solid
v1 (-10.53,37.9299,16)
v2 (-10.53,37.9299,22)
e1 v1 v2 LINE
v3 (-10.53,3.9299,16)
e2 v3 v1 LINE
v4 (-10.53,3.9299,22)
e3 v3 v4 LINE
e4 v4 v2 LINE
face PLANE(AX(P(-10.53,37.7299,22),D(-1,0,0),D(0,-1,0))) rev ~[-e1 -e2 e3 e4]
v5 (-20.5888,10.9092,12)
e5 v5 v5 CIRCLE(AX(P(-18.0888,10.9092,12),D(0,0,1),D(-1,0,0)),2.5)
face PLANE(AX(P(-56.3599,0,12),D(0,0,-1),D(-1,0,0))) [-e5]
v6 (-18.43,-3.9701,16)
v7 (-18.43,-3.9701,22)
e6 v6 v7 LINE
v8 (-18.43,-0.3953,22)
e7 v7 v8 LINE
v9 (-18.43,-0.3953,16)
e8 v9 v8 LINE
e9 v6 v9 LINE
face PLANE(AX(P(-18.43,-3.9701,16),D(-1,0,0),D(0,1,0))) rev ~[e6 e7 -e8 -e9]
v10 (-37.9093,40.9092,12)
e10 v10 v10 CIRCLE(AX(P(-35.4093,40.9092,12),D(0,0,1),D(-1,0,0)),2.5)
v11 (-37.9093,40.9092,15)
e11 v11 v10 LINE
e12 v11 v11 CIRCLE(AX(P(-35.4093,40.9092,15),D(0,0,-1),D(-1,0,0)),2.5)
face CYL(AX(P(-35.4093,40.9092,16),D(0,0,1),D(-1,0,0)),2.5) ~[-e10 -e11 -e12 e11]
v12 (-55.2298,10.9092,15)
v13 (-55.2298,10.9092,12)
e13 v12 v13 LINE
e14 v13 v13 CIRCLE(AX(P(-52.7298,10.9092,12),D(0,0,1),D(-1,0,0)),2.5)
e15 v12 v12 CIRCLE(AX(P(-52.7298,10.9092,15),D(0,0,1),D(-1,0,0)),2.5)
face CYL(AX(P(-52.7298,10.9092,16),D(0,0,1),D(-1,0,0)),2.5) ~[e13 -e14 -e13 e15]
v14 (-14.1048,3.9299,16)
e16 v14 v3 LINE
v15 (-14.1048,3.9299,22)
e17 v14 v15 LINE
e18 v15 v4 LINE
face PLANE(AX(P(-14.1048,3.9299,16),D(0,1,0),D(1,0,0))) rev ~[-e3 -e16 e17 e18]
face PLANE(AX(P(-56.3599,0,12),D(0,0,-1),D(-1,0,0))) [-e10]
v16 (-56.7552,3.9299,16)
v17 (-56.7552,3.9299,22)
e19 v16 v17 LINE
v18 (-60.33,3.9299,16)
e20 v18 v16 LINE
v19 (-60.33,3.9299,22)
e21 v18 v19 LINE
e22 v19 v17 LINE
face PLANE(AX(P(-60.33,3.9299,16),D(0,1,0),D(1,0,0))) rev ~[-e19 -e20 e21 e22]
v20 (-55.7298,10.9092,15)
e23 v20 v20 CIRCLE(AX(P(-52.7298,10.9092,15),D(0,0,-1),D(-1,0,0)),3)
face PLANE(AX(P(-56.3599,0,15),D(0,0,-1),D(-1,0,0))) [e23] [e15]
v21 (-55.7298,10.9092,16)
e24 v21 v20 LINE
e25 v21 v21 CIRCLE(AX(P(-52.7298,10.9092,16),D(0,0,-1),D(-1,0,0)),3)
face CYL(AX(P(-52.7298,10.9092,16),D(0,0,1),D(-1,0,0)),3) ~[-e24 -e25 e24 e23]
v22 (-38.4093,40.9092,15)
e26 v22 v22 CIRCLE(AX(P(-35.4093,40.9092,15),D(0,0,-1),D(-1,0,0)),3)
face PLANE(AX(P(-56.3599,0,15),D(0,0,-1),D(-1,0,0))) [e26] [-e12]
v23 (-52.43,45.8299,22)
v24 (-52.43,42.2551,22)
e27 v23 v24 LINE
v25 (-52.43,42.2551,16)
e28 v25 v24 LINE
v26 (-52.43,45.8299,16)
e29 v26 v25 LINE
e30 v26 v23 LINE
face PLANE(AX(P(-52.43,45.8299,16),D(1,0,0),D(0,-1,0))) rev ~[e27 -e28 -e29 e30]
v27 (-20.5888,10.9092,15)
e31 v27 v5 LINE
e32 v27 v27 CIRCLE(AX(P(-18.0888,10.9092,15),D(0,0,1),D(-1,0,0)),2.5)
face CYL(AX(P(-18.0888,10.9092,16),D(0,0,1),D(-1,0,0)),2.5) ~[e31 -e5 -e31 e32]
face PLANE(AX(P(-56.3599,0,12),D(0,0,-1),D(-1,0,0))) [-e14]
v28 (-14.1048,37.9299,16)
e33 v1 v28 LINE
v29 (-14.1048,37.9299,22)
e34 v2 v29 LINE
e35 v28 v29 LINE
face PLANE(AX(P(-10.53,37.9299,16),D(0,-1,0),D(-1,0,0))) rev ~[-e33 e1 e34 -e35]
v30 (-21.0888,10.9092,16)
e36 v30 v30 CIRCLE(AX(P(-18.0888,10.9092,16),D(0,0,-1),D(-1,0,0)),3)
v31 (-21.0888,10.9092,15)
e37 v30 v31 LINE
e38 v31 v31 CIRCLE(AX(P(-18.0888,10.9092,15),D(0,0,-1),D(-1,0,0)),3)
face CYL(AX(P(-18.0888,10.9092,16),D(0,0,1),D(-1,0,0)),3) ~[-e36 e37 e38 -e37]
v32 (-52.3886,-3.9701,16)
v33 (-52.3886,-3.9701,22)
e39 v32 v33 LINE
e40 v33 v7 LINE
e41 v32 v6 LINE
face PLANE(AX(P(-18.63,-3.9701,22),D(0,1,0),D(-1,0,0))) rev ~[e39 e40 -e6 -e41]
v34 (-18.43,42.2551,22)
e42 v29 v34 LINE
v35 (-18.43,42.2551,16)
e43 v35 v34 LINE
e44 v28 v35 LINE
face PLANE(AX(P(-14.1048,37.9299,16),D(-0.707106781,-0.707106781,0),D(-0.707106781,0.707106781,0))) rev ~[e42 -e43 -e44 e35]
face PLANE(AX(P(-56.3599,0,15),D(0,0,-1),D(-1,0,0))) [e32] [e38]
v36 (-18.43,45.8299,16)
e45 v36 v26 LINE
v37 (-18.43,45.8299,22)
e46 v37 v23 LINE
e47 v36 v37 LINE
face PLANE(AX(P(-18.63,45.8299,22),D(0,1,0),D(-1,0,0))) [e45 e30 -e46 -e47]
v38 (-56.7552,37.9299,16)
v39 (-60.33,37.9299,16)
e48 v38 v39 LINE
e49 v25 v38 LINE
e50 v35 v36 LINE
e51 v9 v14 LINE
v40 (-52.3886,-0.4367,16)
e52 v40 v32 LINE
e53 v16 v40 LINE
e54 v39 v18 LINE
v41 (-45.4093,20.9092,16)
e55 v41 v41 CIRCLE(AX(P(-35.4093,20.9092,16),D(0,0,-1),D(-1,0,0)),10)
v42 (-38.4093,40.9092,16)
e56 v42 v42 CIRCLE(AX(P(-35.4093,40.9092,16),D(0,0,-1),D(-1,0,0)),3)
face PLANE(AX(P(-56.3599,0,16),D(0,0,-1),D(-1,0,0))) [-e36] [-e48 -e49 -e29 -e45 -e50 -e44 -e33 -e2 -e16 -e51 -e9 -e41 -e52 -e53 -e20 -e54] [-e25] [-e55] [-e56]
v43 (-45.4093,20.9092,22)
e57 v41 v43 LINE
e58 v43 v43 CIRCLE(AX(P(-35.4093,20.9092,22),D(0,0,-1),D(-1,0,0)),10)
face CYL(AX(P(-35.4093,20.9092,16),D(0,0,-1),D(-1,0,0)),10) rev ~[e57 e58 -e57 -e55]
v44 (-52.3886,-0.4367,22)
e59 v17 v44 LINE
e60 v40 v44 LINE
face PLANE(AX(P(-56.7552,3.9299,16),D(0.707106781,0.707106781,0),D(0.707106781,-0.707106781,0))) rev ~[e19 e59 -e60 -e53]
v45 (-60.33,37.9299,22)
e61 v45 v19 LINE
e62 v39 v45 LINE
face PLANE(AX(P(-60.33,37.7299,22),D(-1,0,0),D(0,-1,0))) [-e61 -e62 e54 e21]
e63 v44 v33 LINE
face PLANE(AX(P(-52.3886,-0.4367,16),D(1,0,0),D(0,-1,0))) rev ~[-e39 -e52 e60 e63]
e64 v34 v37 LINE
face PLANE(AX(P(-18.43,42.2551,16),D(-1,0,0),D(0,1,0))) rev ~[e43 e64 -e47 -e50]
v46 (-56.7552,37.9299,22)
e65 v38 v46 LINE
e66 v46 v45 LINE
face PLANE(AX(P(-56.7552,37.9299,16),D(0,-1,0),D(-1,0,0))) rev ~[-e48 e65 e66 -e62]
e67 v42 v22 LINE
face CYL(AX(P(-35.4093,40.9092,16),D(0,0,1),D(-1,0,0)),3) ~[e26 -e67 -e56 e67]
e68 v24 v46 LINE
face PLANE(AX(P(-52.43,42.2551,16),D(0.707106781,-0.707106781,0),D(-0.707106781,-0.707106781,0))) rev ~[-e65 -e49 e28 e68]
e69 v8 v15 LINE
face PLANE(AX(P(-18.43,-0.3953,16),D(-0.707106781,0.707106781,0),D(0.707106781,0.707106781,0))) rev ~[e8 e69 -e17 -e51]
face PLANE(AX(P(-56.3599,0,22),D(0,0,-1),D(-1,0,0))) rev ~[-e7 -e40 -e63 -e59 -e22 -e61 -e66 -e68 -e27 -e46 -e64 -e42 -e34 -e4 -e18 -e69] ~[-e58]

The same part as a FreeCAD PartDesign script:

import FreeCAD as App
import Part
import Sketcher

V = App.Vector
Q = App.Units.Quantity

doc = App.newDocument("Part")
body = doc.addObject("PartDesign::Body", "Body")

# Sketch on XY plane
sketch1 = doc.addObject("Sketcher::SketchObject", "Sketch")
body.addObject(sketch1)
sketch1.AttachmentSupport = (doc.XY_Plane, [""])
sketch1.MapMode = "FlatFace"
sketch1.AttachmentOffset = App.Placement(V(0, 0, 22), App.Rotation())
sketch1.addGeometry([
    Part.LineSegment(V(-52.189, -0.354, 0), V(-56.672, 4.13, 0)),  # 0
    Part.LineSegment(V(-56.672, 4.13, 0), V(-60.33, 4.13, 0)),  # 1
    Part.LineSegment(V(-60.33, 4.13, 0), V(-60.33, 37.73, 0)),  # 2
    Part.LineSegment(V(-60.33, 37.73, 0), V(-56.672, 37.73, 0)),  # 3
    Part.LineSegment(V(-56.672, 37.73, 0), V(-52.23, 42.172, 0)),  # 4
    Part.LineSegment(V(-52.23, 42.172, 0), V(-52.23, 45.83, 0)),  # 5
    Part.LineSegment(V(-52.23, 45.83, 0), V(-18.63, 45.83, 0)),  # 6
    Part.LineSegment(V(-18.63, 45.83, 0), V(-18.63, 42.172, 0)),  # 7
    Part.LineSegment(V(-18.63, 42.172, 0), V(-14.188, 37.73, 0)),  # 8
    Part.LineSegment(V(-14.188, 37.73, 0), V(-10.53, 37.73, 0)),  # 9
    Part.LineSegment(V(-10.53, 37.73, 0), V(-10.53, 4.13, 0)),  # 10
    Part.LineSegment(V(-10.53, 4.13, 0), V(-14.188, 4.13, 0)),  # 11
    Part.LineSegment(V(-14.188, 4.13, 0), V(-18.671, -0.354, 0)),  # 12
    Part.LineSegment(V(-18.671, -0.354, 0), V(-18.63, -0.354, 0)),  # 13
    Part.LineSegment(V(-18.63, -0.354, 0), V(-18.63, -3.97, 0)),  # 14
    Part.LineSegment(V(-18.63, -3.97, 0), V(-52.189, -3.97, 0)),  # 15
    Part.LineSegment(V(-52.189, -3.97, 0), V(-52.189, -0.354, 0)),  # 16
], False)
sketch1.addConstraint([
    Sketcher.Constraint("Coincident", 0, 2, 1, 1),
    Sketcher.Constraint("Coincident", 1, 2, 2, 1),
    Sketcher.Constraint("Coincident", 2, 2, 3, 1),
    Sketcher.Constraint("Coincident", 3, 2, 4, 1),
    Sketcher.Constraint("Coincident", 4, 2, 5, 1),
    Sketcher.Constraint("Coincident", 5, 2, 6, 1),
    Sketcher.Constraint("Coincident", 6, 2, 7, 1),
    Sketcher.Constraint("Coincident", 7, 2, 8, 1),
    Sketcher.Constraint("Coincident", 8, 2, 9, 1),
    Sketcher.Constraint("Coincident", 9, 2, 10, 1),
    Sketcher.Constraint("Coincident", 10, 2, 11, 1),
    Sketcher.Constraint("Coincident", 11, 2, 12, 1),
    Sketcher.Constraint("Coincident", 12, 2, 13, 1),
    Sketcher.Constraint("Coincident", 13, 2, 14, 1),
    Sketcher.Constraint("Coincident", 14, 2, 15, 1),
    Sketcher.Constraint("Coincident", 15, 2, 16, 1),
    Sketcher.Constraint("Coincident", 16, 2, 0, 1),
    Sketcher.Constraint("Horizontal", 1),
    Sketcher.Constraint("Vertical", 2),
    Sketcher.Constraint("Horizontal", 3),
    Sketcher.Constraint("Vertical", 5),
    Sketcher.Constraint("Horizontal", 6),
    Sketcher.Constraint("Vertical", 7),
    Sketcher.Constraint("Horizontal", 9),
    Sketcher.Constraint("Vertical", 10),
    Sketcher.Constraint("Horizontal", 11),
    Sketcher.Constraint("Horizontal", 13),
    Sketcher.Constraint("Vertical", 14),
    Sketcher.Constraint("Horizontal", 15),
    Sketcher.Constraint("Vertical", 16),
    Sketcher.Constraint("Perpendicular", 0, 4),
    Sketcher.Constraint("Perpendicular", 4, 8),
    Sketcher.Constraint("Perpendicular", 8, 12),
    Sketcher.Constraint("Horizontal", 4, 2, 7, 2),
    Sketcher.Constraint("Horizontal", 3, 2, 8, 2),
    Sketcher.Constraint("Horizontal", 1, 2, 10, 2),
    Sketcher.Constraint("Horizontal", 13, 2, 16, 2),
    Sketcher.Constraint("Vertical", 0, 2, 3, 2),
    Sketcher.Constraint("Vertical", 8, 2, 11, 2),
    Sketcher.Constraint("Vertical", 7, 2, 13, 2),
    Sketcher.Constraint("Equal", 3, 9),
    Sketcher.Constraint("Equal", 6, 2),
    Sketcher.Constraint("Equal", 11, 5),
    Sketcher.Constraint("Equal", 4, 8),
    Sketcher.Constraint("DistanceX", 6, 1, 6, 2, Q("33.6 mm")),
    Sketcher.Constraint("DistanceX", 2, 2, 4, 2, Q("8.1 mm")),
    Sketcher.Constraint("DistanceY", 14, 2, 11, 2, Q("8.1 mm")),
    Sketcher.Constraint("DistanceY", -1, 1, 0, 2, Q("4.13 mm")),
    Sketcher.Constraint("DistanceX", 1, 2, -1, 1, Q("60.33 mm")),
    Sketcher.Constraint("Distance", 0, Q("6.341 mm")),
    Sketcher.Constraint("DistanceX", 1, 2, 1, 1, Q("3.6577 mm")),
])
pad1 = doc.addObject("PartDesign::Pad", "Pad")
body.addObject(pad1)
pad1.Profile = sketch1
pad1.Length = 6
pad1.Reversed = True

# Sketch on XY plane
sketch2 = doc.addObject("Sketcher::SketchObject", "Sketch001")
body.addObject(sketch2)
sketch2.AttachmentSupport = (doc.XY_Plane, [""])
sketch2.MapMode = "FlatFace"
sketch2.AttachmentOffset = App.Placement(V(0, 0, 16), App.Rotation())
sketch2.addGeometry([
    Part.LineSegment(V(-60.33, 3.93, 0), V(-60.33, 4.13, 0)),  # 0
    Part.LineSegment(V(-60.33, 4.13, 0), V(-56.672, 4.13, 0)),  # 1
    Part.LineSegment(V(-56.672, 4.13, 0), V(-52.189, -0.354, 0)),  # 2
    Part.LineSegment(V(-52.189, -0.354, 0), V(-52.189, -3.97, 0)),  # 3
    Part.LineSegment(V(-52.189, -3.97, 0), V(-52.389, -3.97, 0)),  # 4
    Part.LineSegment(V(-52.389, -3.97, 0), V(-52.389, -0.437, 0)),  # 5
    Part.LineSegment(V(-52.389, -0.437, 0), V(-56.755, 3.93, 0)),  # 6
    Part.LineSegment(V(-56.755, 3.93, 0), V(-60.33, 3.93, 0)),  # 7
    Part.LineSegment(V(-52.43, 45.83, 0), V(-52.23, 45.83, 0)),  # 8
    Part.LineSegment(V(-52.23, 45.83, 0), V(-52.23, 42.172, 0)),  # 9
    Part.LineSegment(V(-52.23, 42.172, 0), V(-56.672, 37.73, 0)),  # 10
    Part.LineSegment(V(-56.672, 37.73, 0), V(-60.33, 37.73, 0)),  # 11
    Part.LineSegment(V(-60.33, 37.73, 0), V(-60.33, 37.93, 0)),  # 12
    Part.LineSegment(V(-60.33, 37.93, 0), V(-56.755, 37.93, 0)),  # 13
    Part.LineSegment(V(-56.755, 37.93, 0), V(-52.43, 42.255, 0)),  # 14
    Part.LineSegment(V(-52.43, 42.255, 0), V(-52.43, 45.83, 0)),  # 15
    Part.LineSegment(V(-14.188, 37.73, 0), V(-18.63, 42.172, 0)),  # 16
    Part.LineSegment(V(-18.63, 42.172, 0), V(-18.63, 45.83, 0)),  # 17
    Part.LineSegment(V(-18.63, 45.83, 0), V(-18.43, 45.83, 0)),  # 18
    Part.LineSegment(V(-18.43, 45.83, 0), V(-18.43, 42.255, 0)),  # 19
    Part.LineSegment(V(-18.43, 42.255, 0), V(-14.105, 37.93, 0)),  # 20
    Part.LineSegment(V(-14.105, 37.93, 0), V(-10.53, 37.93, 0)),  # 21
    Part.LineSegment(V(-10.53, 37.93, 0), V(-10.53, 37.73, 0)),  # 22
    Part.LineSegment(V(-10.53, 37.73, 0), V(-14.188, 37.73, 0)),  # 23
    Part.LineSegment(V(-14.188, 4.13, 0), V(-10.53, 4.13, 0)),  # 24
    Part.LineSegment(V(-10.53, 4.13, 0), V(-10.53, 3.93, 0)),  # 25
    Part.LineSegment(V(-10.53, 3.93, 0), V(-14.105, 3.93, 0)),  # 26
    Part.LineSegment(V(-14.105, 3.93, 0), V(-18.43, -0.395, 0)),  # 27
    Part.LineSegment(V(-18.43, -0.395, 0), V(-18.43, -3.97, 0)),  # 28
    Part.LineSegment(V(-18.43, -3.97, 0), V(-18.63, -3.97, 0)),  # 29
    Part.LineSegment(V(-18.63, -3.97, 0), V(-18.63, -0.354, 0)),  # 30
    Part.LineSegment(V(-18.63, -0.354, 0), V(-18.671, -0.354, 0)),  # 31
    Part.LineSegment(V(-18.671, -0.354, 0), V(-14.188, 4.13, 0)),  # 32
], False)
sketch2.addConstraint([
    Sketcher.Constraint("Coincident", 0, 2, 1, 1),
    Sketcher.Constraint("Coincident", 1, 2, 2, 1),
    Sketcher.Constraint("Coincident", 2, 2, 3, 1),
    Sketcher.Constraint("Coincident", 3, 2, 4, 1),
    Sketcher.Constraint("Coincident", 4, 2, 5, 1),
    Sketcher.Constraint("Coincident", 5, 2, 6, 1),
    Sketcher.Constraint("Coincident", 6, 2, 7, 1),
    Sketcher.Constraint("Coincident", 7, 2, 0, 1),
    Sketcher.Constraint("Coincident", 8, 2, 9, 1),
    Sketcher.Constraint("Coincident", 9, 2, 10, 1),
    Sketcher.Constraint("Coincident", 10, 2, 11, 1),
    Sketcher.Constraint("Coincident", 11, 2, 12, 1),
    Sketcher.Constraint("Coincident", 12, 2, 13, 1),
    Sketcher.Constraint("Coincident", 13, 2, 14, 1),
    Sketcher.Constraint("Coincident", 14, 2, 15, 1),
    Sketcher.Constraint("Coincident", 15, 2, 8, 1),
    Sketcher.Constraint("Coincident", 16, 2, 17, 1),
    Sketcher.Constraint("Coincident", 17, 2, 18, 1),
    Sketcher.Constraint("Coincident", 18, 2, 19, 1),
    Sketcher.Constraint("Coincident", 19, 2, 20, 1),
    Sketcher.Constraint("Coincident", 20, 2, 21, 1),
    Sketcher.Constraint("Coincident", 21, 2, 22, 1),
    Sketcher.Constraint("Coincident", 22, 2, 23, 1),
    Sketcher.Constraint("Coincident", 23, 2, 16, 1),
    Sketcher.Constraint("Coincident", 24, 2, 25, 1),
    Sketcher.Constraint("Coincident", 25, 2, 26, 1),
    Sketcher.Constraint("Coincident", 26, 2, 27, 1),
    Sketcher.Constraint("Coincident", 27, 2, 28, 1),
    Sketcher.Constraint("Coincident", 28, 2, 29, 1),
    Sketcher.Constraint("Coincident", 29, 2, 30, 1),
    Sketcher.Constraint("Coincident", 30, 2, 31, 1),
    Sketcher.Constraint("Coincident", 31, 2, 32, 1),
    Sketcher.Constraint("Coincident", 32, 2, 24, 1),
    Sketcher.Constraint("Vertical", 0),
    Sketcher.Constraint("Horizontal", 1),
    Sketcher.Constraint("Vertical", 3),
    Sketcher.Constraint("Horizontal", 4),
    Sketcher.Constraint("Vertical", 5),
    Sketcher.Constraint("Horizontal", 7),
    Sketcher.Constraint("Horizontal", 8),
    Sketcher.Constraint("Vertical", 9),
    Sketcher.Constraint("Horizontal", 11),
    Sketcher.Constraint("Vertical", 12),
    Sketcher.Constraint("Horizontal", 13),
    Sketcher.Constraint("Vertical", 15),
    Sketcher.Constraint("Vertical", 17),
    Sketcher.Constraint("Horizontal", 18),
    Sketcher.Constraint("Vertical", 19),
    Sketcher.Constraint("Horizontal", 21),
    Sketcher.Constraint("Vertical", 22),
    Sketcher.Constraint("Horizontal", 23),
    Sketcher.Constraint("Horizontal", 24),
    Sketcher.Constraint("Vertical", 25),
    Sketcher.Constraint("Horizontal", 26),
    Sketcher.Constraint("Vertical", 28),
    Sketcher.Constraint("Horizontal", 29),
    Sketcher.Constraint("Vertical", 30),
    Sketcher.Constraint("Horizontal", 31),
    Sketcher.Constraint("Parallel", 2, 6),
    Sketcher.Constraint("Perpendicular", 6, 10),
    Sketcher.Constraint("Parallel", 10, 14),
    Sketcher.Constraint("Perpendicular", 14, 16),
    Sketcher.Constraint("Parallel", 16, 20),
    Sketcher.Constraint("Perpendicular", 20, 27),
    Sketcher.Constraint("Parallel", 27, 32),
    Sketcher.Constraint("Horizontal", 9, 2, 16, 2),
    Sketcher.Constraint("Horizontal", 15, 2, 17, 2),
    Sketcher.Constraint("Horizontal", 14, 2, 19, 2),
    Sketcher.Constraint("Horizontal", 13, 2, 20, 2),
    Sketcher.Constraint("Horizontal", 11, 2, 22, 2),
    Sketcher.Constraint("Horizontal", 1, 2, 24, 2),
    Sketcher.Constraint("Horizontal", 7, 2, 25, 2),
    Sketcher.Constraint("Horizontal", 4, 2, 28, 2),
    Sketcher.Constraint("Horizontal", 2, 2, 30, 2),
    Sketcher.Constraint("Vertical", 1, 2, 10, 2),
    Sketcher.Constraint("Vertical", 7, 2, 11, 2),
    Sketcher.Constraint("Vertical", 6, 2, 13, 2),
    Sketcher.Constraint("Vertical", 22, 2, 24, 2),
    Sketcher.Constraint("Vertical", 20, 2, 26, 2),
    Sketcher.Constraint("Vertical", 19, 2, 27, 2),
    Sketcher.Constraint("Vertical", 17, 2, 29, 2),
    Sketcher.Constraint("Vertical", 23, 2, 32, 2),
    Sketcher.Constraint("Equal", 4, 8),
    Sketcher.Constraint("Equal", 8, 18),
    Sketcher.Constraint("Equal", 13, 21),
    Sketcher.Constraint("Equal", 11, 23),
    Sketcher.Constraint("Equal", 29, 0),
    Sketcher.Constraint("Equal", 24, 9),
    Sketcher.Constraint("Equal", 0, 12),
    Sketcher.Constraint("Equal", 19, 28),
    Sketcher.Constraint("DistanceX", 4, 2, 4, 1, Q("0.2 mm")),
    Sketcher.Constraint("DistanceX", 15, 2, 18, 2, Q("34 mm")),
    Sketcher.Constraint("DistanceY", 25, 2, 21, 2, Q("34 mm")),
    Sketcher.Constraint("DistanceY", 3, 2, 1, 2, Q("8.1 mm")),
    Sketcher.Constraint("DistanceX", 0, 2, -1, 1, Q("60.33 mm")),
    Sketcher.Constraint("DistanceY", -1, 1, 0, 2, Q("4.13 mm")),
    Sketcher.Constraint("Distance", 2, Q("6.341 mm")),
    Sketcher.Constraint("DistanceX", 1, 1, 1, 2, Q("3.6577 mm")),
    Sketcher.Constraint("DistanceX", 7, 2, 7, 1, Q("3.5748 mm")),
])
pad2 = doc.addObject("PartDesign::Pad", "Pad001")
body.addObject(pad2)
pad2.Profile = sketch2
pad2.Length = 6

# Sketch on XY plane
sketch3 = doc.addObject("Sketcher::SketchObject", "Sketch002")
body.addObject(sketch3)
sketch3.AttachmentSupport = (doc.XY_Plane, [""])
sketch3.MapMode = "FlatFace"
sketch3.AttachmentOffset = App.Placement(V(0, 0, 16), App.Rotation())
sketch3.addGeometry(Part.Circle(V(-35, 21, 0), V(0, 0, 1), 10), False)
sketch3.addConstraint([
    Sketcher.Constraint("Diameter", 0, Q("20 mm")),
    Sketcher.Constraint("DistanceX", 0, 3, -1, 1, Q("35.4093 mm")),
    Sketcher.Constraint("DistanceY", -1, 1, 0, 3, Q("20.9092 mm")),
])
pocket1 = doc.addObject("PartDesign::Pocket", "Pocket")
body.addObject(pocket1)
pocket1.Profile = sketch3
pocket1.Length = 10
pocket1.Reversed = True

# Sketch on XY plane
sketch4 = doc.addObject("Sketcher::SketchObject", "Sketch003")
body.addObject(sketch4)
sketch4.AttachmentSupport = (doc.XY_Plane, [""])
sketch4.MapMode = "FlatFace"
sketch4.AttachmentOffset = App.Placement(V(0, 0, 16), App.Rotation())
sketch4.addGeometry([
    Part.Circle(V(-35.4, 40.9, 0), V(0, 0, 1), 2.5),
    Part.Circle(V(-52.7, 10.9, 0), V(0, 0, 1), 2.5),
    Part.Circle(V(-18.1, 10.9, 0), V(0, 0, 1), 2.5),
], False)
sketch4.addConstraint([
    Sketcher.Constraint("Equal", 0, 1),
    Sketcher.Constraint("Equal", 1, 2),
    Sketcher.Constraint("Horizontal", 1, 3, 2, 3),
    Sketcher.Constraint("Diameter", 0, Q("5 mm")),
    Sketcher.Constraint("DistanceY", 1, 3, 0, 3, Q("30 mm")),
    Sketcher.Constraint("DistanceX", 1, 3, 2, 3, Q("34.641 mm")),
    Sketcher.Constraint("DistanceX", 0, 3, -1, 1, Q("35.4093 mm")),
    Sketcher.Constraint("DistanceY", -1, 1, 0, 3, Q("40.9092 mm")),
    Sketcher.Constraint("DistanceX", 1, 3, -1, 1, Q("52.7298 mm")),
])
pad3 = doc.addObject("PartDesign::Pad", "Pad002")
body.addObject(pad3)
pad3.Profile = sketch4
pad3.Length = 4
pad3.Reversed = True

# Sketch on XY plane
sketch5 = doc.addObject("Sketcher::SketchObject", "Sketch004")
body.addObject(sketch5)
sketch5.AttachmentSupport = (doc.XY_Plane, [""])
sketch5.MapMode = "FlatFace"
sketch5.AttachmentOffset = App.Placement(V(0, 0, 16), App.Rotation())
sketch5.addGeometry([
    Part.Circle(V(-18.1, 10.9, 0), V(0, 0, 1), 3),
    Part.Circle(V(-52.7, 10.9, 0), V(0, 0, 1), 3),
    Part.Circle(V(-35.4, 40.9, 0), V(0, 0, 1), 3),
    Part.Circle(V(-35.4, 40.9, 0), V(0, 0, 1), 2.5),
], False)
sketch5.addConstraint([
    Sketcher.Constraint("Coincident", 3, 3, 2, 3),
    Sketcher.Constraint("Equal", 0, 1),
    Sketcher.Constraint("Equal", 1, 2),
    Sketcher.Constraint("Horizontal", 0, 3, 1, 3),
    Sketcher.Constraint("Diameter", 0, Q("6 mm")),
    Sketcher.Constraint("Diameter", 3, Q("5 mm")),
    Sketcher.Constraint("DistanceY", 1, 3, 2, 3, Q("30 mm")),
    Sketcher.Constraint("DistanceX", 1, 3, 0, 3, Q("34.641 mm")),
    Sketcher.Constraint("DistanceX", 0, 3, -1, 1, Q("18.0888 mm")),
    Sketcher.Constraint("DistanceY", -1, 1, 0, 3, Q("10.9092 mm")),
    Sketcher.Constraint("DistanceX", 2, 3, -1, 1, Q("35.4093 mm")),
])
pad4 = doc.addObject("PartDesign::Pad", "Pad003")
body.addObject(pad4)
pad4.Profile = sketch5
pad4.Length = 1
pad4.Reversed = True

doc.recompute()
